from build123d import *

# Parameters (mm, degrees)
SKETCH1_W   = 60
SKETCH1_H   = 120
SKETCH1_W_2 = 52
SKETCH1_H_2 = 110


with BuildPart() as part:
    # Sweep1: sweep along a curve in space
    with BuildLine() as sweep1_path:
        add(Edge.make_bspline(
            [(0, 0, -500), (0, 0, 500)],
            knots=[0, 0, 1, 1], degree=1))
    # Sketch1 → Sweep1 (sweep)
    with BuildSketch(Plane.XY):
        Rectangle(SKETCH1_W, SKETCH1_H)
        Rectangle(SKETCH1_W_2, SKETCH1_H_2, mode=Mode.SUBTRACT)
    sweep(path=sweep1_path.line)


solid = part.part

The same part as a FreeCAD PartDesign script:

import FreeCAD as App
import Part
import Sketcher

V = App.Vector

doc = App.newDocument("Part")
body = doc.addObject("PartDesign::Body", "Body")

sketch1 = doc.addObject("Sketcher::SketchObject", "Sketch")
body.addObject(sketch1)
sketch1.AttachmentSupport = (doc.XY_Plane, [""])
sketch1.MapMode = "FlatFace"
sketch1.addGeometry(Part.LineSegment(V(-30, 60, 0), V(-30, -60, 0)), False)
sketch1.addGeometry(Part.LineSegment(V(-30, -60, 0), V(30, -60, 0)), False)
sketch1.addGeometry(Part.LineSegment(V(30, -60, 0), V(30, 60, 0)), False)
sketch1.addGeometry(Part.LineSegment(V(30, 60, 0), V(-30, 60, 0)), False)
sketch1.addGeometry(Part.LineSegment(V(26, -55, 0), V(-26, -55, 0)), False)
sketch1.addGeometry(Part.LineSegment(V(-26, -55, 0), V(-26, 55, 0)), False)
sketch1.addGeometry(Part.LineSegment(V(-26, 55, 0), V(26, 55, 0)), False)
sketch1.addGeometry(Part.LineSegment(V(26, 55, 0), V(26, -55, 0)), False)
sketch1.addConstraint(Sketcher.Constraint("Coincident", 0, 2, 1, 1))
sketch1.addConstraint(Sketcher.Constraint("Coincident", 1, 2, 2, 1))
sketch1.addConstraint(Sketcher.Constraint("Coincident", 2, 2, 3, 1))
sketch1.addConstraint(Sketcher.Constraint("Coincident", 3, 2, 0, 1))
sketch1.addConstraint(Sketcher.Constraint("Coincident", 4, 2, 5, 1))
sketch1.addConstraint(Sketcher.Constraint("Coincident", 5, 2, 6, 1))
sketch1.addConstraint(Sketcher.Constraint("Coincident", 6, 2, 7, 1))
sketch1.addConstraint(Sketcher.Constraint("Coincident", 7, 2, 4, 1))
sketch1.addConstraint(Sketcher.Constraint("Vertical", 0))
sketch1.addConstraint(Sketcher.Constraint("Horizontal", 1))
sketch1.addConstraint(Sketcher.Constraint("Vertical", 2))
sketch1.addConstraint(Sketcher.Constraint("Horizontal", 3))
sketch1.addConstraint(Sketcher.Constraint("Horizontal", 4))
sketch1.addConstraint(Sketcher.Constraint("Vertical", 5))
sketch1.addConstraint(Sketcher.Constraint("Horizontal", 6))
sketch1.addConstraint(Sketcher.Constraint("Vertical", 7))
sketch1.addConstraint(Sketcher.Constraint("Symmetric", 0, 2, 2, 2, -1, 1))
sketch1.addConstraint(Sketcher.Constraint("Symmetric", 4, 2, 6, 2, -1, 1))
sketch1.addConstraint(Sketcher.Constraint("DistanceX", 1, 1, 1, 2, 60.0))
sketch1.addConstraint(Sketcher.Constraint("DistanceX", 4, 2, 4, 1, 52.0))
sketch1.addConstraint(Sketcher.Constraint("DistanceY", 0, 2, 0, 1, 120.0))
sketch1.addConstraint(Sketcher.Constraint("DistanceY", 5, 1, 5, 2, 110.0))

sketch2 = doc.addObject("Sketcher::SketchObject", "Sketch001")
body.addObject(sketch2)
sketch2.AttachmentSupport = (doc.XZ_Plane, [""])
sketch2.MapMode = "FlatFace"
sketch2.addGeometry(Part.BSplineCurve([V(0, -500, 0), V(0, 500, 0)], [2, 2], [0, 1], False, 1, [1, 1], False), False)
sketch2.addConstraint(Sketcher.Constraint("Block", 0))
doc.recompute()

additivepipe = doc.addObject("PartDesign::AdditivePipe", "AdditivePipe")
body.addObject(additivepipe)
additivepipe.Profile = sketch1
additivepipe.Spine = (sketch2, ["Edge1"])

doc.recompute()
